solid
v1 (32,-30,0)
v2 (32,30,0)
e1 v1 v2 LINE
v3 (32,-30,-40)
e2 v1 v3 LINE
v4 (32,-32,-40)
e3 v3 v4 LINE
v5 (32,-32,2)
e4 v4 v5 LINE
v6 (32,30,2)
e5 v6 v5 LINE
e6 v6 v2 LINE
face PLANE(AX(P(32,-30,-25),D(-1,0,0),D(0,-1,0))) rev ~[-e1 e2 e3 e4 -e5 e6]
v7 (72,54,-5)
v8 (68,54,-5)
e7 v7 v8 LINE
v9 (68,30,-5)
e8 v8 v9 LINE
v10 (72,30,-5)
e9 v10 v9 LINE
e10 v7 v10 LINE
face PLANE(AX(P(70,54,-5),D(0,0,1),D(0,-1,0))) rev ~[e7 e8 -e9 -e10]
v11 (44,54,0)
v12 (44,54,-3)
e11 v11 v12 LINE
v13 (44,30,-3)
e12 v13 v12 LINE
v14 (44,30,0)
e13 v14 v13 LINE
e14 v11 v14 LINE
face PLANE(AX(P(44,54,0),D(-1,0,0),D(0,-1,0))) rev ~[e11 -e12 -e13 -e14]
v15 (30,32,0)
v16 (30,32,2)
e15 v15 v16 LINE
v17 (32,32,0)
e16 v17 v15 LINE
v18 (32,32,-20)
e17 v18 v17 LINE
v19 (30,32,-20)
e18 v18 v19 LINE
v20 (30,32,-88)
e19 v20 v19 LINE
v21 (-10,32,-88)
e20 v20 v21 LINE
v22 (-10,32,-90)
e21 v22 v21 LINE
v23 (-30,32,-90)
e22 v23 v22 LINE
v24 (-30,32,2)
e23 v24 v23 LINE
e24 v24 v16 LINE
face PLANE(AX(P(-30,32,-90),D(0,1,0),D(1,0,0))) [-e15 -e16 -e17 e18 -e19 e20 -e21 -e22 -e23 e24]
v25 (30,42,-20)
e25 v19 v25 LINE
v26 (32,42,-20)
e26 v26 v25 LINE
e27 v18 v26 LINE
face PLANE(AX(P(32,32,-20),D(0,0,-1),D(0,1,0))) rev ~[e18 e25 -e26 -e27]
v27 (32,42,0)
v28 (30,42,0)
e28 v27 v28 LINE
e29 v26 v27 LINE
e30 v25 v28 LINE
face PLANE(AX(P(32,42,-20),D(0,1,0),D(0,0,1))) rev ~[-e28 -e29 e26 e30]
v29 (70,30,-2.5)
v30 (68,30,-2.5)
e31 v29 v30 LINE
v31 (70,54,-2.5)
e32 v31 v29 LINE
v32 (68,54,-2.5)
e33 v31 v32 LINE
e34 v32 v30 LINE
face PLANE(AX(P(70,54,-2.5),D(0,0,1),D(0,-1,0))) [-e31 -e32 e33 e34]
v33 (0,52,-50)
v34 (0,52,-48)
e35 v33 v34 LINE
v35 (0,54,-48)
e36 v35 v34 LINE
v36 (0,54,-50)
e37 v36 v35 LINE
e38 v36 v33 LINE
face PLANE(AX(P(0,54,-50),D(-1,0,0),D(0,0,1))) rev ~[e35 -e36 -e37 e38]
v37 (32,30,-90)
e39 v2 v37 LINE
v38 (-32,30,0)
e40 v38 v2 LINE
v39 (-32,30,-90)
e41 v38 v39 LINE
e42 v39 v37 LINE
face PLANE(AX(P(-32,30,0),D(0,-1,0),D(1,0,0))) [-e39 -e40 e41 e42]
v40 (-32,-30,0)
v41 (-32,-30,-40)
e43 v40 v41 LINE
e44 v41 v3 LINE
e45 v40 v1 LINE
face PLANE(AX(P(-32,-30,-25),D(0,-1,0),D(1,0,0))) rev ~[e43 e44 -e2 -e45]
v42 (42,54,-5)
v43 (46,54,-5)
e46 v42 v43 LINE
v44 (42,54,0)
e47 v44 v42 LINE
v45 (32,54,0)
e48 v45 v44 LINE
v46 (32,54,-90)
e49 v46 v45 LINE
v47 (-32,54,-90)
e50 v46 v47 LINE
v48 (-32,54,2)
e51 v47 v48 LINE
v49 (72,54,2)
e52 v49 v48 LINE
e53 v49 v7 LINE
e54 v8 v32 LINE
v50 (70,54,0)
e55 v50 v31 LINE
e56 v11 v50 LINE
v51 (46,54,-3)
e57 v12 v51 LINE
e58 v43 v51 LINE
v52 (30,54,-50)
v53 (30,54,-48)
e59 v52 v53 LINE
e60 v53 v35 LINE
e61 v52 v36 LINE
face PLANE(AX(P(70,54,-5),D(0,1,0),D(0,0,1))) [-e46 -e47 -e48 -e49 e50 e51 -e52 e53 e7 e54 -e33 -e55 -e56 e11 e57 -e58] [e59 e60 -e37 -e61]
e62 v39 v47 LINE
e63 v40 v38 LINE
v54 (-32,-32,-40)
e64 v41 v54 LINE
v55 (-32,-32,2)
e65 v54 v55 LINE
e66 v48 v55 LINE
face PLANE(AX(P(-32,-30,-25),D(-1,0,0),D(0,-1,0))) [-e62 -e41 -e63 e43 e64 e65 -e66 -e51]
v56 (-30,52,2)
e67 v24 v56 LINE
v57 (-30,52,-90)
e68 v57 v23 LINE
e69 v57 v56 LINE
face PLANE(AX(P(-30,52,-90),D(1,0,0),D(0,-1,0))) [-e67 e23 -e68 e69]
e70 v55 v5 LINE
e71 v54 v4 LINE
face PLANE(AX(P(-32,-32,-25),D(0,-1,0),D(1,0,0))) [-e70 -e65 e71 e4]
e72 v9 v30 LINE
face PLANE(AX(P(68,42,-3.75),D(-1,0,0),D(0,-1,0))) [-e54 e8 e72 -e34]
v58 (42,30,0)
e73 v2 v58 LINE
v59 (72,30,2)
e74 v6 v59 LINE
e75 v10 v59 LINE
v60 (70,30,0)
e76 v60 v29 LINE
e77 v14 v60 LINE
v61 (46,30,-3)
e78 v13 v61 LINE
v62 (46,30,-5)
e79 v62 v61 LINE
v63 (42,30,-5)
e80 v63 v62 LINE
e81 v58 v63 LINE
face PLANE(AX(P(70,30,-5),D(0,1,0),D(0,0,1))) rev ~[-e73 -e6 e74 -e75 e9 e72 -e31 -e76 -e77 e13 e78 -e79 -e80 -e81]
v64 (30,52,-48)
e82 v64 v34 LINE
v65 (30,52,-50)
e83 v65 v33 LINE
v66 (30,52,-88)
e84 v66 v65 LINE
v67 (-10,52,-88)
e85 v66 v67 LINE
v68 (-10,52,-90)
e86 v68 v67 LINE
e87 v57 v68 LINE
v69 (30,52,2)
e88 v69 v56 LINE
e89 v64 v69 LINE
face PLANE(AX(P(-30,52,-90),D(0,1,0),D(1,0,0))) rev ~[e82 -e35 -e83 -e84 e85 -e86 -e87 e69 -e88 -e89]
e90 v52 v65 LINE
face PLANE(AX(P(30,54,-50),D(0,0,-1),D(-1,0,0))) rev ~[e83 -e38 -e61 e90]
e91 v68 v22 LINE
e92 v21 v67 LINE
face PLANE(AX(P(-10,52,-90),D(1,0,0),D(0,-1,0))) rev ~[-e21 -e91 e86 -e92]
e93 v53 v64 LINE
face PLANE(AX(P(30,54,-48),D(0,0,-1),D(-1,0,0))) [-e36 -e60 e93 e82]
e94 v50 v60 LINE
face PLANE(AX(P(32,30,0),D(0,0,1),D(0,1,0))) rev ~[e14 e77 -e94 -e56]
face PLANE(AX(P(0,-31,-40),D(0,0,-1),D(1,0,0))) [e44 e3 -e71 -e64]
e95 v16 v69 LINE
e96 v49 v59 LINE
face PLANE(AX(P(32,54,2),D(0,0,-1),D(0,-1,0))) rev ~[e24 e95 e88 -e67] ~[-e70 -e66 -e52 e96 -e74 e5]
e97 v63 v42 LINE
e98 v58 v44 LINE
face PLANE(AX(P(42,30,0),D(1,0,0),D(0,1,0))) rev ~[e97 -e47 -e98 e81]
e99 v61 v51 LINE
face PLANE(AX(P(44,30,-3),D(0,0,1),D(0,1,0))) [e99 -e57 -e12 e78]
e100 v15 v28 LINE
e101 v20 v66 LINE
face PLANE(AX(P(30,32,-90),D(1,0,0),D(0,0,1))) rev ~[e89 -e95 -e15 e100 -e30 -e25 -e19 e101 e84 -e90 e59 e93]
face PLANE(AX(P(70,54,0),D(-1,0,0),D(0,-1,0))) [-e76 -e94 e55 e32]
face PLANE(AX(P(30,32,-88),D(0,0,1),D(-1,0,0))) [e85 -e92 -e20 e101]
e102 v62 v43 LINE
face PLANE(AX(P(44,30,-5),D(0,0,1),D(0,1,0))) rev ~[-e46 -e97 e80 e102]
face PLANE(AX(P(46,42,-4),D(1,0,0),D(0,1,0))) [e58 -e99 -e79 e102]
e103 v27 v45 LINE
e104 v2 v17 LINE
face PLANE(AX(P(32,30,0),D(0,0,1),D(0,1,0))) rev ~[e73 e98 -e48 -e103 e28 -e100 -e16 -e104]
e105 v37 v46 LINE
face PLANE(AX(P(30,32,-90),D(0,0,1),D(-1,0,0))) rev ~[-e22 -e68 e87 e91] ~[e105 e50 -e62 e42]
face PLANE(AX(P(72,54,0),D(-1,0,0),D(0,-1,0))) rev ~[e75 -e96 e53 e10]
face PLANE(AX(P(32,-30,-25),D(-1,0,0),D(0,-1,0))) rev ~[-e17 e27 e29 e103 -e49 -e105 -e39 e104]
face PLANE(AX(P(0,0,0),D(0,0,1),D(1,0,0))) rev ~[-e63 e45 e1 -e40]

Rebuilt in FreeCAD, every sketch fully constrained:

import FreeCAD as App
import Part
import Sketcher

V = App.Vector

doc = App.newDocument("Part")
params = doc.addObject("Spreadsheet::Sheet", "Params")
for row, (alias, value) in enumerate([
    ("sketch1_width", "64 mm"),
    ("pad1_length", "2 mm"),
    ("sketch2_width", "64 mm"),
    ("sketch2_height", "2 mm"),
    ("pad2_length", "25 mm"),
    ("sketch3_width", "64 mm"),
    ("sketch3_height", "2 mm"),
    ("pad3_length", "90 mm"),
    ("sketch4_width", "2 mm"),
    ("sketch4_height", "92 mm"),
    ("pad4_length", "22 mm"),
    ("sketch5_width", "2 mm"),
    ("sketch5_height", "92 mm"),
    ("pad5_length", "22 mm"),
    ("sketch6_width", "2 mm"),
    ("sketch6_height", "92 mm"),
    ("pad6_length", "60 mm"),
    ("sketch7_width", "60 mm"),
    ("sketch7_height", "2 mm"),
    ("pad7_length", "20 mm"),
    ("sketch8_width", "10 mm"),
    ("sketch8_height", "20 mm"),
    ("pocket1_length", "25 mm"),
    ("sketch9_width", "20 mm"),
    ("pocket2_length", "25 mm"),
    ("sketch10_width", "64 mm"),
    ("sketch10_height", "2 mm"),
    ("pad8_length", "15 mm"),
    ("sketch11_width", "30 mm"),
    ("sketch11_height", "2 mm"),
    ("pocket3_length", "2 mm"),
    ("sketch12_width", "24 mm"),
    ("sketch12_height", "2 mm"),
    ("pad9_length", "40 mm"),
    ("sketch13_width", "2 mm"),
    ("sketch13_height", "24 mm"),
    ("pad10_length", "5 mm"),
    ("sketch14_width", "24 mm"),
    ("sketch14_height", "2 mm"),
    ("pad11_length", "2 mm"),
    ("sketch15_width", "24 mm"),
    ("sketch15_height", "2.5 mm"),
    ("pad12_length", "2 mm"),
], start=1):
    params.set(f"A{row}", alias)
    params.set(f"B{row}", "=" + value)
    params.setAlias(f"B{row}", alias)

body = doc.addObject("PartDesign::Body", "Body")

# Sketch on XY plane
sketch1 = body.newObject("Sketcher::SketchObject", "Sketch")
sketch1.AttachmentSupport = (doc.getObject("XY_Plane"), [""])
sketch1.MapMode = "FlatFace"
sketch1.addGeometry(Part.LineSegment(V(-32, 32, 0), V(-32, -32, 0)), False)
sketch1.addGeometry(Part.LineSegment(V(-32, -32, 0), V(32, -32, 0)), False)
sketch1.addGeometry(Part.LineSegment(V(32, -32, 0), V(32, 32, 0)), False)
sketch1.addGeometry(Part.LineSegment(V(32, 32, 0), V(-32, 32, 0)), False)
sketch1.addConstraint(Sketcher.Constraint("Coincident", 0, 2, 1, 1))
sketch1.addConstraint(Sketcher.Constraint("Coincident", 1, 2, 2, 1))
sketch1.addConstraint(Sketcher.Constraint("Coincident", 2, 2, 3, 1))
sketch1.addConstraint(Sketcher.Constraint("Coincident", 3, 2, 0, 1))
sketch1.addConstraint(Sketcher.Constraint("Vertical", 0))
sketch1.addConstraint(Sketcher.Constraint("Horizontal", 1))
sketch1.addConstraint(Sketcher.Constraint("Vertical", 2))
sketch1.addConstraint(Sketcher.Constraint("Horizontal", 3))
sketch1.addConstraint(Sketcher.Constraint("Symmetric", 0, 2, 2, 2, -1, 1))
sketch1.addConstraint(Sketcher.Constraint("Equal", 3, 0))
sketch1.addConstraint(Sketcher.Constraint("DistanceX", 1, 1, 1, 2, 64.0))
sketch1.setExpression("Constraints[10]", "Params.sketch1_width")
pad1 = body.newObject("PartDesign::Pad", "Pad")
pad1.Profile = sketch1
pad1.setExpression("Length", "Params.pad1_length")

# Sketch on XY plane
sketch2 = body.newObject("Sketcher::SketchObject", "Sketch001")
sketch2.AttachmentSupport = (doc.getObject("XY_Plane"), [""])
sketch2.MapMode = "FlatFace"
sketch2.addGeometry(Part.LineSegment(V(-32, -32, 0), V(-32, -30, 0)), False)
sketch2.addGeometry(Part.LineSegment(V(-32, -30, 0), V(32, -30, 0)), False)
sketch2.addGeometry(Part.LineSegment(V(32, -30, 0), V(32, -32, 0)), False)
sketch2.addGeometry(Part.LineSegment(V(32, -32, 0), V(-32, -32, 0)), False)
sketch2.addConstraint(Sketcher.Constraint("Coincident", 0, 2, 1, 1))
sketch2.addConstraint(Sketcher.Constraint("Coincident", 1, 2, 2, 1))
sketch2.addConstraint(Sketcher.Constraint("Coincident", 2, 2, 3, 1))
sketch2.addConstraint(Sketcher.Constraint("Coincident", 3, 2, 0, 1))
sketch2.addConstraint(Sketcher.Constraint("Vertical", 0))
sketch2.addConstraint(Sketcher.Constraint("Horizontal", 1))
sketch2.addConstraint(Sketcher.Constraint("Vertical", 2))
sketch2.addConstraint(Sketcher.Constraint("Horizontal", 3))
sketch2.addConstraint(Sketcher.Constraint("DistanceX", 1, 1, 1, 2, 64.0))
sketch2.addConstraint(Sketcher.Constraint("DistanceY", 0, 1, 0, 2, 2.0))
sketch2.addConstraint(Sketcher.Constraint("DistanceX", 0, 2, -1, 1, 32.0))
sketch2.addConstraint(Sketcher.Constraint("DistanceY", 0, 2, -1, 1, 30.0))
sketch2.setExpression("Constraints[8]", "Params.sketch2_width")
sketch2.setExpression("Constraints[9]", "Params.sketch2_height")
pad2 = body.newObject("PartDesign::Pad", "Pad001")
pad2.Profile = sketch2
pad2.setExpression("Length", "Params.pad2_length")
pad2.Reversed = True

# Sketch on XY plane
sketch3 = body.newObject("Sketcher::SketchObject", "Sketch002")
sketch3.AttachmentSupport = (doc.getObject("XY_Plane"), [""])
sketch3.MapMode = "FlatFace"
sketch3.addGeometry(Part.LineSegment(V(-32, 30, 0), V(-32, 32, 0)), False)
sketch3.addGeometry(Part.LineSegment(V(-32, 32, 0), V(32, 32, 0)), False)
sketch3.addGeometry(Part.LineSegment(V(32, 32, 0), V(32, 30, 0)), False)
sketch3.addGeometry(Part.LineSegment(V(32, 30, 0), V(-32, 30, 0)), False)
sketch3.addConstraint(Sketcher.Constraint("Coincident", 0, 2, 1, 1))
sketch3.addConstraint(Sketcher.Constraint("Coincident", 1, 2, 2, 1))
sketch3.addConstraint(Sketcher.Constraint("Coincident", 2, 2, 3, 1))
sketch3.addConstraint(Sketcher.Constraint("Coincident", 3, 2, 0, 1))
sketch3.addConstraint(Sketcher.Constraint("Vertical", 0))
sketch3.addConstraint(Sketcher.Constraint("Horizontal", 1))
sketch3.addConstraint(Sketcher.Constraint("Vertical", 2))
sketch3.addConstraint(Sketcher.Constraint("Horizontal", 3))
sketch3.addConstraint(Sketcher.Constraint("DistanceX", 1, 1, 1, 2, 64.0))
sketch3.addConstraint(Sketcher.Constraint("DistanceY", 0, 1, 0, 2, 2.0))
sketch3.addConstraint(Sketcher.Constraint("DistanceX", 0, 2, -1, 1, 32.0))
sketch3.addConstraint(Sketcher.Constraint("DistanceY", -1, 1, 0, 2, 32.0))
sketch3.setExpression("Constraints[8]", "Params.sketch3_width")
sketch3.setExpression("Constraints[9]", "Params.sketch3_height")
pad3 = body.newObject("PartDesign::Pad", "Pad002")
pad3.Profile = sketch3
pad3.setExpression("Length", "Params.pad3_length")
pad3.Reversed = True

# Sketch on XZ plane
sketch4 = body.newObject("Sketcher::SketchObject", "Sketch003")
sketch4.AttachmentSupport = (doc.getObject("XZ_Plane"), [""])
sketch4.MapMode = "FlatFace"
sketch4.AttachmentOffset = App.Placement(V(0, 0, -32), App.Rotation())
sketch4.addGeometry(Part.LineSegment(V(32, 2, 0), V(32, -90, 0)), False)
sketch4.addGeometry(Part.LineSegment(V(32, -90, 0), V(30, -90, 0)), False)
sketch4.addGeometry(Part.LineSegment(V(30, -90, 0), V(30, 2, 0)), False)
sketch4.addGeometry(Part.LineSegment(V(30, 2, 0), V(32, 2, 0)), False)
sketch4.addConstraint(Sketcher.Constraint("Coincident", 0, 2, 1, 1))
sketch4.addConstraint(Sketcher.Constraint("Coincident", 1, 2, 2, 1))
sketch4.addConstraint(Sketcher.Constraint("Coincident", 2, 2, 3, 1))
sketch4.addConstraint(Sketcher.Constraint("Coincident", 3, 2, 0, 1))
sketch4.addConstraint(Sketcher.Constraint("Vertical", 0))
sketch4.addConstraint(Sketcher.Constraint("Horizontal", 1))
sketch4.addConstraint(Sketcher.Constraint("Vertical", 2))
sketch4.addConstraint(Sketcher.Constraint("Horizontal", 3))
sketch4.addConstraint(Sketcher.Constraint("DistanceX", 1, 2, 1, 1, 2.0))
sketch4.addConstraint(Sketcher.Constraint("DistanceY", 0, 2, 0, 1, 92.0))
sketch4.addConstraint(Sketcher.Constraint("DistanceX", -1, 1, 0, 2, 32.0))
sketch4.addConstraint(Sketcher.Constraint("DistanceY", 0, 2, -1, 1, 90.0))
sketch4.setExpression("Constraints[8]", "Params.sketch4_width")
sketch4.setExpression("Constraints[9]", "Params.sketch4_height")
pad4 = body.newObject("PartDesign::Pad", "Pad003")
pad4.Profile = sketch4
pad4.setExpression("Length", "Params.pad4_length")
pad4.Reversed = True

# Sketch on XZ plane
sketch5 = body.newObject("Sketcher::SketchObject", "Sketch004")
sketch5.AttachmentSupport = (doc.getObject("XZ_Plane"), [""])
sketch5.MapMode = "FlatFace"
sketch5.AttachmentOffset = App.Placement(V(0, 0, -32), App.Rotation())
sketch5.addGeometry(Part.LineSegment(V(-30, 2, 0), V(-30, -90, 0)), False)
sketch5.addGeometry(Part.LineSegment(V(-30, -90, 0), V(-32, -90, 0)), False)
sketch5.addGeometry(Part.LineSegment(V(-32, -90, 0), V(-32, 2, 0)), False)
sketch5.addGeometry(Part.LineSegment(V(-32, 2, 0), V(-30, 2, 0)), False)
sketch5.addConstraint(Sketcher.Constraint("Coincident", 0, 2, 1, 1))
sketch5.addConstraint(Sketcher.Constraint("Coincident", 1, 2, 2, 1))
sketch5.addConstraint(Sketcher.Constraint("Coincident", 2, 2, 3, 1))
sketch5.addConstraint(Sketcher.Constraint("Coincident", 3, 2, 0, 1))
sketch5.addConstraint(Sketcher.Constraint("Vertical", 0))
sketch5.addConstraint(Sketcher.Constraint("Horizontal", 1))
sketch5.addConstraint(Sketcher.Constraint("Vertical", 2))
sketch5.addConstraint(Sketcher.Constraint("Horizontal", 3))
sketch5.addConstraint(Sketcher.Constraint("DistanceX", 1, 2, 1, 1, 2.0))
sketch5.addConstraint(Sketcher.Constraint("DistanceY", 0, 2, 0, 1, 92.0))
sketch5.addConstraint(Sketcher.Constraint("DistanceX", 0, 2, -1, 1, 30.0))
sketch5.addConstraint(Sketcher.Constraint("DistanceY", 0, 2, -1, 1, 90.0))
sketch5.setExpression("Constraints[8]", "Params.sketch5_width")
sketch5.setExpression("Constraints[9]", "Params.sketch5_height")
pad5 = body.newObject("PartDesign::Pad", "Pad004")
pad5.Profile = sketch5
pad5.setExpression("Length", "Params.pad5_length")
pad5.Reversed = True

# Sketch on YZ plane
sketch6 = body.newObject("Sketcher::SketchObject", "Sketch005")
sketch6.AttachmentSupport = (doc.getObject("YZ_Plane"), [""])
sketch6.MapMode = "FlatFace"
sketch6.AttachmentOffset = App.Placement(V(0, 0, 30), App.Rotation())
sketch6.addGeometry(Part.LineSegment(V(54, 2, 0), V(54, -90, 0)), False)
sketch6.addGeometry(Part.LineSegment(V(54, -90, 0), V(52, -90, 0)), False)
sketch6.addGeometry(Part.LineSegment(V(52, -90, 0), V(52, 2, 0)), False)
sketch6.addGeometry(Part.LineSegment(V(52, 2, 0), V(54, 2, 0)), False)
sketch6.addConstraint(Sketcher.Constraint("Coincident", 0, 2, 1, 1))
sketch6.addConstraint(Sketcher.Constraint("Coincident", 1, 2, 2, 1))
sketch6.addConstraint(Sketcher.Constraint("Coincident", 2, 2, 3, 1))
sketch6.addConstraint(Sketcher.Constraint("Coincident", 3, 2, 0, 1))
sketch6.addConstraint(Sketcher.Constraint("Vertical", 0))
sketch6.addConstraint(Sketcher.Constraint("Horizontal", 1))
sketch6.addConstraint(Sketcher.Constraint("Vertical", 2))
sketch6.addConstraint(Sketcher.Constraint("Horizontal", 3))
sketch6.addConstraint(Sketcher.Constraint("DistanceX", 1, 2, 1, 1, 2.0))
sketch6.addConstraint(Sketcher.Constraint("DistanceY", 0, 2, 0, 1, 92.0))
sketch6.addConstraint(Sketcher.Constraint("DistanceX", -1, 1, 0, 2, 54.0))
sketch6.addConstraint(Sketcher.Constraint("DistanceY", 0, 2, -1, 1, 90.0))
sketch6.setExpression("Constraints[8]", "Params.sketch6_width")
sketch6.setExpression("Constraints[9]", "Params.sketch6_height")
pad6 = body.newObject("PartDesign::Pad", "Pad005")
pad6.Profile = sketch6
pad6.setExpression("Length", "Params.pad6_length")
pad6.Reversed = True

# Sketch on XZ plane
sketch7 = body.newObject("Sketcher::SketchObject", "Sketch006")
sketch7.AttachmentSupport = (doc.getObject("XZ_Plane"), [""])
sketch7.MapMode = "FlatFace"
sketch7.AttachmentOffset = App.Placement(V(0, 0, -32), App.Rotation())
sketch7.addGeometry(Part.LineSegment(V(30, -88, 0), V(30, -90, 0)), False)
sketch7.addGeometry(Part.LineSegment(V(30, -90, 0), V(-30, -90, 0)), False)
sketch7.addGeometry(Part.LineSegment(V(-30, -90, 0), V(-30, -88, 0)), False)
sketch7.addGeometry(Part.LineSegment(V(-30, -88, 0), V(30, -88, 0)), False)
sketch7.addConstraint(Sketcher.Constraint("Coincident", 0, 2, 1, 1))
sketch7.addConstraint(Sketcher.Constraint("Coincident", 1, 2, 2, 1))
sketch7.addConstraint(Sketcher.Constraint("Coincident", 2, 2, 3, 1))
sketch7.addConstraint(Sketcher.Constraint("Coincident", 3, 2, 0, 1))
sketch7.addConstraint(Sketcher.Constraint("Vertical", 0))
sketch7.addConstraint(Sketcher.Constraint("Horizontal", 1))
sketch7.addConstraint(Sketcher.Constraint("Vertical", 2))
sketch7.addConstraint(Sketcher.Constraint("Horizontal", 3))
sketch7.addConstraint(Sketcher.Constraint("DistanceX", 1, 2, 1, 1, 60.0))
sketch7.addConstraint(Sketcher.Constraint("DistanceY", 0, 2, 0, 1, 2.0))
sketch7.addConstraint(Sketcher.Constraint("DistanceX", -1, 1, 0, 2, 30.0))
sketch7.addConstraint(Sketcher.Constraint("DistanceY", 0, 2, -1, 1, 90.0))
sketch7.setExpression("Constraints[8]", "Params.sketch7_width")
sketch7.setExpression("Constraints[9]", "Params.sketch7_height")
pad7 = body.newObject("PartDesign::Pad", "Pad006")
pad7.Profile = sketch7
pad7.setExpression("Length", "Params.pad7_length")
pad7.Reversed = True

# Sketch on YZ plane
sketch8 = body.newObject("Sketcher::SketchObject", "Sketch007")
sketch8.AttachmentSupport = (doc.getObject("YZ_Plane"), [""])
sketch8.MapMode = "FlatFace"
sketch8.AttachmentOffset = App.Placement(V(0, 0, 32), App.Rotation())
sketch8.addGeometry(Part.LineSegment(V(32, 0, 0), V(32, -20, 0)), False)
sketch8.addGeometry(Part.LineSegment(V(32, -20, 0), V(42, -20, 0)), False)
sketch8.addGeometry(Part.LineSegment(V(42, -20, 0), V(42, 0, 0)), False)
sketch8.addGeometry(Part.LineSegment(V(42, 0, 0), V(32, 0, 0)), False)
sketch8.addConstraint(Sketcher.Constraint("Coincident", 0, 2, 1, 1))
sketch8.addConstraint(Sketcher.Constraint("Coincident", 1, 2, 2, 1))
sketch8.addConstraint(Sketcher.Constraint("Coincident", 2, 2, 3, 1))
sketch8.addConstraint(Sketcher.Constraint("Coincident", 3, 2, 0, 1))
sketch8.addConstraint(Sketcher.Constraint("Vertical", 0))
sketch8.addConstraint(Sketcher.Constraint("Horizontal", 1))
sketch8.addConstraint(Sketcher.Constraint("Vertical", 2))
sketch8.addConstraint(Sketcher.Constraint("Horizontal", 3))
sketch8.addConstraint(Sketcher.Constraint("PointOnObject", 2, 2, -1))
sketch8.addConstraint(Sketcher.Constraint("DistanceX", 1, 1, 1, 2, 10.0))
sketch8.addConstraint(Sketcher.Constraint("DistanceY", 0, 2, 0, 1, 20.0))
sketch8.addConstraint(Sketcher.Constraint("DistanceX", -1, 1, 0, 2, 32.0))
sketch8.setExpression("Constraints[9]", "Params.sketch8_width")
sketch8.setExpression("Constraints[10]", "Params.sketch8_height")
pocket1 = body.newObject("PartDesign::Pocket", "Pocket")
pocket1.Profile = sketch8
pocket1.setExpression("Length", "Params.pocket1_length")

# Sketch on XY plane
sketch9 = body.newObject("Sketcher::SketchObject", "Sketch008")
sketch9.AttachmentSupport = (doc.getObject("XY_Plane"), [""])
sketch9.MapMode = "FlatFace"
sketch9.AttachmentOffset = App.Placement(V(0, 0, -90), App.Rotation())
sketch9.addGeometry(Part.LineSegment(V(-30, 32, 0), V(-30, 52, 0)), False)
sketch9.addGeometry(Part.LineSegment(V(-30, 52, 0), V(-10, 52, 0)), False)
sketch9.addGeometry(Part.LineSegment(V(-10, 52, 0), V(-10, 32, 0)), False)
sketch9.addGeometry(Part.LineSegment(V(-10, 32, 0), V(-30, 32, 0)), False)
sketch9.addConstraint(Sketcher.Constraint("Coincident", 0, 2, 1, 1))
sketch9.addConstraint(Sketcher.Constraint("Coincident", 1, 2, 2, 1))
sketch9.addConstraint(Sketcher.Constraint("Coincident", 2, 2, 3, 1))
sketch9.addConstraint(Sketcher.Constraint("Coincident", 3, 2, 0, 1))
sketch9.addConstraint(Sketcher.Constraint("Vertical", 0))
sketch9.addConstraint(Sketcher.Constraint("Horizontal", 1))
sketch9.addConstraint(Sketcher.Constraint("Vertical", 2))
sketch9.addConstraint(Sketcher.Constraint("Horizontal", 3))
sketch9.addConstraint(Sketcher.Constraint("Equal", 3, 0))
sketch9.addConstraint(Sketcher.Constraint("DistanceX", 1, 1, 1, 2, 20.0))
sketch9.addConstraint(Sketcher.Constraint("DistanceX", 0, 2, -1, 1, 30.0))
sketch9.addConstraint(Sketcher.Constraint("DistanceY", -1, 1, 0, 2, 52.0))
sketch9.setExpression("Constraints[9]", "Params.sketch9_width")
pocket2 = body.newObject("PartDesign::Pocket", "Pocket001")
pocket2.Profile = sketch9
pocket2.setExpression("Length", "Params.pocket2_length")
pocket2.Reversed = True

# Sketch on XY plane
sketch10 = body.newObject("Sketcher::SketchObject", "Sketch009")
sketch10.AttachmentSupport = (doc.getObject("XY_Plane"), [""])
sketch10.MapMode = "FlatFace"
sketch10.AttachmentOffset = App.Placement(V(0, 0, -25), App.Rotation())
sketch10.addGeometry(Part.LineSegment(V(-32, -32, 0), V(-32, -30, 0)), False)
sketch10.addGeometry(Part.LineSegment(V(-32, -30, 0), V(32, -30, 0)), False)
sketch10.addGeometry(Part.LineSegment(V(32, -30, 0), V(32, -32, 0)), False)
sketch10.addGeometry(Part.LineSegment(V(32, -32, 0), V(-32, -32, 0)), False)
sketch10.addConstraint(Sketcher.Constraint("Coincident", 0, 2, 1, 1))
sketch10.addConstraint(Sketcher.Constraint("Coincident", 1, 2, 2, 1))
sketch10.addConstraint(Sketcher.Constraint("Coincident", 2, 2, 3, 1))
sketch10.addConstraint(Sketcher.Constraint("Coincident", 3, 2, 0, 1))
sketch10.addConstraint(Sketcher.Constraint("Vertical", 0))
sketch10.addConstraint(Sketcher.Constraint("Horizontal", 1))
sketch10.addConstraint(Sketcher.Constraint("Vertical", 2))
sketch10.addConstraint(Sketcher.Constraint("Horizontal", 3))
sketch10.addConstraint(Sketcher.Constraint("DistanceX", 1, 1, 1, 2, 64.0))
sketch10.addConstraint(Sketcher.Constraint("DistanceY", 0, 1, 0, 2, 2.0))
sketch10.addConstraint(Sketcher.Constraint("DistanceX", 0, 2, -1, 1, 32.0))
sketch10.addConstraint(Sketcher.Constraint("DistanceY", 0, 2, -1, 1, 30.0))
sketch10.setExpression("Constraints[8]", "Params.sketch10_width")
sketch10.setExpression("Constraints[9]", "Params.sketch10_height")
pad8 = body.newObject("PartDesign::Pad", "Pad007")
pad8.Profile = sketch10
pad8.setExpression("Length", "Params.pad8_length")
pad8.Reversed = True

# Sketch on XZ plane
sketch11 = body.newObject("Sketcher::SketchObject", "Sketch010")
sketch11.AttachmentSupport = (doc.getObject("XZ_Plane"), [""])
sketch11.MapMode = "FlatFace"
sketch11.AttachmentOffset = App.Placement(V(0, 0, -54), App.Rotation())
sketch11.addGeometry(Part.LineSegment(V(30, -48, 0), V(30, -50, 0)), False)
sketch11.addGeometry(Part.LineSegment(V(30, -50, 0), V(0, -50, 0)), False)
sketch11.addGeometry(Part.LineSegment(V(0, -50, 0), V(0, -48, 0)), False)
sketch11.addGeometry(Part.LineSegment(V(0, -48, 0), V(30, -48, 0)), False)
sketch11.addConstraint(Sketcher.Constraint("Coincident", 0, 2, 1, 1))
sketch11.addConstraint(Sketcher.Constraint("Coincident", 1, 2, 2, 1))
sketch11.addConstraint(Sketcher.Constraint("Coincident", 2, 2, 3, 1))
sketch11.addConstraint(Sketcher.Constraint("Coincident", 3, 2, 0, 1))
sketch11.addConstraint(Sketcher.Constraint("Vertical", 0))
sketch11.addConstraint(Sketcher.Constraint("Horizontal", 1))
sketch11.addConstraint(Sketcher.Constraint("Vertical", 2))
sketch11.addConstraint(Sketcher.Constraint("Horizontal", 3))
sketch11.addConstraint(Sketcher.Constraint("PointOnObject", 1, 2, -2))
sketch11.addConstraint(Sketcher.Constraint("DistanceX", 1, 2, 1, 1, 30.0))
sketch11.addConstraint(Sketcher.Constraint("DistanceY", 0, 2, 0, 1, 2.0))
sketch11.addConstraint(Sketcher.Constraint("DistanceY", 0, 2, -1, 1, 50.0))
sketch11.setExpression("Constraints[9]", "Params.sketch11_width")
sketch11.setExpression("Constraints[10]", "Params.sketch11_height")
pocket3 = body.newObject("PartDesign::Pocket", "Pocket002")
pocket3.Profile = sketch11
pocket3.setExpression("Length", "Params.pocket3_length")
pocket3.Reversed = True

# Sketch on YZ plane
sketch12 = body.newObject("Sketcher::SketchObject", "Sketch011")
sketch12.AttachmentSupport = (doc.getObject("YZ_Plane"), [""])
sketch12.MapMode = "FlatFace"
sketch12.AttachmentOffset = App.Placement(V(0, 0, 32), App.Rotation())
sketch12.addGeometry(Part.LineSegment(V(30, 2, 0), V(30, 0, 0)), False)
sketch12.addGeometry(Part.LineSegment(V(30, 0, 0), V(54, 0, 0)), False)
sketch12.addGeometry(Part.LineSegment(V(54, 0, 0), V(54, 2, 0)), False)
sketch12.addGeometry(Part.LineSegment(V(54, 2, 0), V(30, 2, 0)), False)
sketch12.addConstraint(Sketcher.Constraint("Coincident", 0, 2, 1, 1))
sketch12.addConstraint(Sketcher.Constraint("Coincident", 1, 2, 2, 1))
sketch12.addConstraint(Sketcher.Constraint("Coincident", 2, 2, 3, 1))
sketch12.addConstraint(Sketcher.Constraint("Coincident", 3, 2, 0, 1))
sketch12.addConstraint(Sketcher.Constraint("Vertical", 0))
sketch12.addConstraint(Sketcher.Constraint("Horizontal", 1))
sketch12.addConstraint(Sketcher.Constraint("Vertical", 2))
sketch12.addConstraint(Sketcher.Constraint("Horizontal", 3))
sketch12.addConstraint(Sketcher.Constraint("PointOnObject", 0, 2, -1))
sketch12.addConstraint(Sketcher.Constraint("DistanceX", 1, 1, 1, 2, 24.0))
sketch12.addConstraint(Sketcher.Constraint("DistanceY", 0, 2, 0, 1, 2.0))
sketch12.addConstraint(Sketcher.Constraint("DistanceX", -1, 1, 0, 2, 30.0))
sketch12.setExpression("Constraints[9]", "Params.sketch12_width")
sketch12.setExpression("Constraints[10]", "Params.sketch12_height")
pad9 = body.newObject("PartDesign::Pad", "Pad008")
pad9.Profile = sketch12
pad9.setExpression("Length", "Params.pad9_length")

# Sketch on XY plane
sketch13 = body.newObject("Sketcher::SketchObject", "Sketch012")
sketch13.AttachmentSupport = (doc.getObject("XY_Plane"), [""])
sketch13.MapMode = "FlatFace"
sketch13.addGeometry(Part.LineSegment(V(70, 30, 0), V(70, 54, 0)), False)
sketch13.addGeometry(Part.LineSegment(V(70, 54, 0), V(72, 54, 0)), False)
sketch13.addGeometry(Part.LineSegment(V(72, 54, 0), V(72, 30, 0)), False)
sketch13.addGeometry(Part.LineSegment(V(72, 30, 0), V(70, 30, 0)), False)
sketch13.addGeometry(Part.LineSegment(V(42, 54, 0), V(44, 54, 0)), False)
sketch13.addGeometry(Part.LineSegment(V(44, 54, 0), V(44, 30, 0)), False)
sketch13.addGeometry(Part.LineSegment(V(44, 30, 0), V(42, 30, 0)), False)
sketch13.addGeometry(Part.LineSegment(V(42, 30, 0), V(42, 54, 0)), False)
sketch13.addConstraint(Sketcher.Constraint("Coincident", 0, 2, 1, 1))
sketch13.addConstraint(Sketcher.Constraint("Coincident", 1, 2, 2, 1))
sketch13.addConstraint(Sketcher.Constraint("Coincident", 2, 2, 3, 1))
sketch13.addConstraint(Sketcher.Constraint("Coincident", 3, 2, 0, 1))
sketch13.addConstraint(Sketcher.Constraint("Coincident", 4, 2, 5, 1))
sketch13.addConstraint(Sketcher.Constraint("Coincident", 5, 2, 6, 1))
sketch13.addConstraint(Sketcher.Constraint("Coincident", 6, 2, 7, 1))
sketch13.addConstraint(Sketcher.Constraint("Coincident", 7, 2, 4, 1))
sketch13.addConstraint(Sketcher.Constraint("Vertical", 0))
sketch13.addConstraint(Sketcher.Constraint("Horizontal", 1))
sketch13.addConstraint(Sketcher.Constraint("Vertical", 2))
sketch13.addConstraint(Sketcher.Constraint("Horizontal", 3))
sketch13.addConstraint(Sketcher.Constraint("Horizontal", 4))
sketch13.addConstraint(Sketcher.Constraint("Vertical", 5))
sketch13.addConstraint(Sketcher.Constraint("Horizontal", 6))
sketch13.addConstraint(Sketcher.Constraint("Vertical", 7))
sketch13.addConstraint(Sketcher.Constraint("Horizontal", 1, 2, 4, 2))
sketch13.addConstraint(Sketcher.Constraint("Horizontal", 3, 2, 5, 2))
sketch13.addConstraint(Sketcher.Constraint("Equal", 3, 4))
sketch13.addConstraint(Sketcher.Constraint("DistanceX", 1, 1, 1, 2, 2.0))
sketch13.addConstraint(Sketcher.Constraint("DistanceY", 0, 1, 0, 2, 24.0))
sketch13.addConstraint(Sketcher.Constraint("DistanceX", -1, 1, 0, 2, 70.0))
sketch13.addConstraint(Sketcher.Constraint("DistanceY", -1, 1, 0, 2, 54.0))
sketch13.addConstraint(Sketcher.Constraint("DistanceX", -1, 1, 4, 2, 44.0))
sketch13.setExpression("Constraints[19]", "Params.sketch13_width")
sketch13.setExpression("Constraints[20]", "Params.sketch13_height")
pad10 = body.newObject("PartDesign::Pad", "Pad009")
pad10.Profile = sketch13
pad10.setExpression("Length", "Params.pad10_length")
pad10.Reversed = True

# Sketch on YZ plane
sketch14 = body.newObject("Sketcher::SketchObject", "Sketch013")
sketch14.AttachmentSupport = (doc.getObject("YZ_Plane"), [""])
sketch14.MapMode = "FlatFace"
sketch14.AttachmentOffset = App.Placement(V(0, 0, 44), App.Rotation())
sketch14.addGeometry(Part.LineSegment(V(30, -3, 0), V(30, -5, 0)), False)
sketch14.addGeometry(Part.LineSegment(V(30, -5, 0), V(54, -5, 0)), False)
sketch14.addGeometry(Part.LineSegment(V(54, -5, 0), V(54, -3, 0)), False)
sketch14.addGeometry(Part.LineSegment(V(54, -3, 0), V(30, -3, 0)), False)
sketch14.addConstraint(Sketcher.Constraint("Coincident", 0, 2, 1, 1))
sketch14.addConstraint(Sketcher.Constraint("Coincident", 1, 2, 2, 1))
sketch14.addConstraint(Sketcher.Constraint("Coincident", 2, 2, 3, 1))
sketch14.addConstraint(Sketcher.Constraint("Coincident", 3, 2, 0, 1))
sketch14.addConstraint(Sketcher.Constraint("Vertical", 0))
sketch14.addConstraint(Sketcher.Constraint("Horizontal", 1))
sketch14.addConstraint(Sketcher.Constraint("Vertical", 2))
sketch14.addConstraint(Sketcher.Constraint("Horizontal", 3))
sketch14.addConstraint(Sketcher.Constraint("DistanceX", 1, 1, 1, 2, 24.0))
sketch14.addConstraint(Sketcher.Constraint("DistanceY", 0, 2, 0, 1, 2.0))
sketch14.addConstraint(Sketcher.Constraint("DistanceX", -1, 1, 0, 2, 30.0))
sketch14.addConstraint(Sketcher.Constraint("DistanceY", 0, 2, -1, 1, 5.0))
sketch14.setExpression("Constraints[8]", "Params.sketch14_width")
sketch14.setExpression("Constraints[9]", "Params.sketch14_height")
pad11 = body.newObject("PartDesign::Pad", "Pad010")
pad11.Profile = sketch14
pad11.setExpression("Length", "Params.pad11_length")

# Sketch on YZ plane
sketch15 = body.newObject("Sketcher::SketchObject", "Sketch014")
sketch15.AttachmentSupport = (doc.getObject("YZ_Plane"), [""])
sketch15.MapMode = "FlatFace"
sketch15.AttachmentOffset = App.Placement(V(0, 0, 70), App.Rotation())
sketch15.addGeometry(Part.LineSegment(V(54, -2.5, 0), V(54, -5, 0)), False)
sketch15.addGeometry(Part.LineSegment(V(54, -5, 0), V(30, -5, 0)), False)
sketch15.addGeometry(Part.LineSegment(V(30, -5, 0), V(30, -2.5, 0)), False)
sketch15.addGeometry(Part.LineSegment(V(30, -2.5, 0), V(54, -2.5, 0)), False)
sketch15.addConstraint(Sketcher.Constraint("Coincident", 0, 2, 1, 1))
sketch15.addConstraint(Sketcher.Constraint("Coincident", 1, 2, 2, 1))
sketch15.addConstraint(Sketcher.Constraint("Coincident", 2, 2, 3, 1))
sketch15.addConstraint(Sketcher.Constraint("Coincident", 3, 2, 0, 1))
sketch15.addConstraint(Sketcher.Constraint("Vertical", 0))
sketch15.addConstraint(Sketcher.Constraint("Horizontal", 1))
sketch15.addConstraint(Sketcher.Constraint("Vertical", 2))
sketch15.addConstraint(Sketcher.Constraint("Horizontal", 3))
sketch15.addConstraint(Sketcher.Constraint("DistanceX", 1, 2, 1, 1, 24.0))
sketch15.addConstraint(Sketcher.Constraint("DistanceY", 0, 2, 0, 1, 2.5))
sketch15.addConstraint(Sketcher.Constraint("DistanceX", -1, 1, 0, 2, 54.0))
sketch15.addConstraint(Sketcher.Constraint("DistanceY", 0, 2, -1, 1, 5.0))
sketch15.setExpression("Constraints[8]", "Params.sketch15_width")
sketch15.setExpression("Constraints[9]", "Params.sketch15_height")
pad12 = body.newObject("PartDesign::Pad", "Pad011")
pad12.Profile = sketch15
pad12.setExpression("Length", "Params.pad12_length")
pad12.Reversed = True

doc.recompute()
